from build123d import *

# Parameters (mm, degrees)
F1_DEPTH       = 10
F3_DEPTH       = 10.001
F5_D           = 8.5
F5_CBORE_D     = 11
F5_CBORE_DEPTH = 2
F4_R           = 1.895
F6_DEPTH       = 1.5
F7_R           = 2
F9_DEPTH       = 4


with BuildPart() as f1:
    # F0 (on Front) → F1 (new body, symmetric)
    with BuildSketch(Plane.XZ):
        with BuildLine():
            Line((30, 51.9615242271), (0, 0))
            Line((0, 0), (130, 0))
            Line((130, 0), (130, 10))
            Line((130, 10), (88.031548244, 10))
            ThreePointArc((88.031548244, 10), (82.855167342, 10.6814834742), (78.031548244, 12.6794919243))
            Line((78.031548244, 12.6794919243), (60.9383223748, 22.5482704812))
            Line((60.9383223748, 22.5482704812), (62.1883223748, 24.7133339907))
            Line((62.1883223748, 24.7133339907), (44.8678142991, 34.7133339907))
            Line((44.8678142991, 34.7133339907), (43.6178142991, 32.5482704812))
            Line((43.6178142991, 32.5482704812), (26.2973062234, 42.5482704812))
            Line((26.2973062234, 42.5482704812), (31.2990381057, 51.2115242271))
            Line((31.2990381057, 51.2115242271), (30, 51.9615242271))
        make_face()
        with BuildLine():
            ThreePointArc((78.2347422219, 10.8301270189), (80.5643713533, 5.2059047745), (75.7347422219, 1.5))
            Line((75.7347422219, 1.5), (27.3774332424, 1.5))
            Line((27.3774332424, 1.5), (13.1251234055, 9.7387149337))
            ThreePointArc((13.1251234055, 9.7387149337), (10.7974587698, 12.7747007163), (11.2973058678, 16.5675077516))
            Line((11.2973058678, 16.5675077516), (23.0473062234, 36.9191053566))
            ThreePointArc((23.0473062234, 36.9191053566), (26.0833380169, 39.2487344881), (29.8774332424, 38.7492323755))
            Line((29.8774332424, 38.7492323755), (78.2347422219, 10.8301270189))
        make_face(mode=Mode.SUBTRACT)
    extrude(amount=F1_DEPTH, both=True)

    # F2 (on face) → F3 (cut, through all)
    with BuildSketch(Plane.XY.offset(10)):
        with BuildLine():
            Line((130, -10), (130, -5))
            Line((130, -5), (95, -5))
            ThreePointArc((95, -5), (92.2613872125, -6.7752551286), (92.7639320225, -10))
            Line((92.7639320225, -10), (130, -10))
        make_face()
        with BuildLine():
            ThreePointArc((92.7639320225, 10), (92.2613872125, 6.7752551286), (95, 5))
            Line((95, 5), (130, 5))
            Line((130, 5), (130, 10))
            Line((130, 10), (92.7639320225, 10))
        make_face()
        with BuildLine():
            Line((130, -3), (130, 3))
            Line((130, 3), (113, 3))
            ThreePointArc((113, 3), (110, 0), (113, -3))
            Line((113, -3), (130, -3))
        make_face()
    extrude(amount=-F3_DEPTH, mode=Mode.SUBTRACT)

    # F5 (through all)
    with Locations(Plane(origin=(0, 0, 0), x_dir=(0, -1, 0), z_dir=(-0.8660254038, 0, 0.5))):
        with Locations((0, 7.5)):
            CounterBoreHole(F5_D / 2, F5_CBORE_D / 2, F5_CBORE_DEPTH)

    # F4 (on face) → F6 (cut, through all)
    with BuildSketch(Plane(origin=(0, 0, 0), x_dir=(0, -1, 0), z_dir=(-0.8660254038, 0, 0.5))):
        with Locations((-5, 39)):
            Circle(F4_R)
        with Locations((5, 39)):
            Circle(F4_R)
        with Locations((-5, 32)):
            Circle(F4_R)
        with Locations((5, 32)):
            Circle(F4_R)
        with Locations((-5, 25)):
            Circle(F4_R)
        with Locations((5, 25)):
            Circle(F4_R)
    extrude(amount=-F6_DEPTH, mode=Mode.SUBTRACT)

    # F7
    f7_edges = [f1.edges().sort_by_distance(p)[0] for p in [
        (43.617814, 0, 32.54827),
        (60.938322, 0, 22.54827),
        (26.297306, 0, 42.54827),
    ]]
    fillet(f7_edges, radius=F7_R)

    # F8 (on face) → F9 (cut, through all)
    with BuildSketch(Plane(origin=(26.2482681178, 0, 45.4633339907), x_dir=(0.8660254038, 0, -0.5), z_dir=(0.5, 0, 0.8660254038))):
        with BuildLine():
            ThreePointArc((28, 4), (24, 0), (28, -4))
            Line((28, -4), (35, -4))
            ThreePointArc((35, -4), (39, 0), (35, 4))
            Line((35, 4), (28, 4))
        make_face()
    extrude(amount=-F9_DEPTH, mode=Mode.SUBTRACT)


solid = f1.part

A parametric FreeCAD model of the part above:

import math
import FreeCAD as App
import Part
import Sketcher
from FreeCAD import Vector
Q = App.Units.Quantity


def edges_at(feature, points):
    """Names of the edges that pass closest to the given points."""
    edges = feature.Shape.Edges
    near = lambda p: min(range(len(edges)), key=lambda i: edges[i].distToShape(Part.Vertex(*p))[0])
    return sorted({f"Edge{near(p) + 1}" for p in points})

doc = App.newDocument("Part")
body = doc.addObject("PartDesign::Body", "Body")

sketch1 = body.newObject("Sketcher::SketchObject", "Sketch")
sketch1.AttachmentSupport = (doc.getObject("XZ_Plane"), [""])
sketch1.MapMode = "FlatFace"
sketch1.addGeometry(Part.LineSegment(Vector(30, 52, 0), Vector(0, 0, 0)), False)
sketch1.addGeometry(Part.LineSegment(Vector(0, 0, 0), Vector(130, 0, 0)), False)
sketch1.addGeometry(Part.LineSegment(Vector(130, 0, 0), Vector(130, 10, 0)), False)
sketch1.addGeometry(Part.LineSegment(Vector(130, 10, 0), Vector(88, 10, 0)), False)
sketch1.addGeometry(Part.ArcOfCircle(Part.Circle(Vector(88, 30, 0), Vector(0, 0, 1), 20), math.radians(-120), math.radians(-90)), False)
sketch1.addGeometry(Part.LineSegment(Vector(78, 12.7, 0), Vector(60.9, 22.5, 0)), False)
sketch1.addGeometry(Part.LineSegment(Vector(60.9, 22.5, 0), Vector(62.2, 24.7, 0)), False)
sketch1.addGeometry(Part.LineSegment(Vector(62.2, 24.7, 0), Vector(44.9, 34.7, 0)), False)
sketch1.addGeometry(Part.LineSegment(Vector(44.9, 34.7, 0), Vector(43.6, 32.5, 0)), False)
sketch1.addGeometry(Part.LineSegment(Vector(43.6, 32.5, 0), Vector(26.3, 42.5, 0)), False)
sketch1.addGeometry(Part.LineSegment(Vector(26.3, 42.5, 0), Vector(31.3, 51.2, 0)), False)
sketch1.addGeometry(Part.LineSegment(Vector(31.3, 51.2, 0), Vector(30, 52, 0)), False)
sketch1.addGeometry(Part.LineSegment(Vector(29.9, 38.7, 0), Vector(78.2, 10.8, 0)), False)
sketch1.addGeometry(Part.ArcOfCircle(Part.Circle(Vector(75.7, 6.5, 0), Vector(0, 0, 1), 5), math.radians(-90), math.radians(60)), False)
sketch1.addGeometry(Part.LineSegment(Vector(75.7, 1.5, 0), Vector(27.4, 1.5, 0)), False)
sketch1.addGeometry(Part.LineSegment(Vector(27.4, 1.5, 0), Vector(13.1, 9.7, 0)), False)
sketch1.addGeometry(Part.ArcOfCircle(Part.Circle(Vector(15.6, 14.1, 0), Vector(0, 0, 1), 5), math.radians(150), math.radians(240)), False)
sketch1.addGeometry(Part.LineSegment(Vector(11.3, 16.6, 0), Vector(23, 36.9, 0)), False)
sketch1.addGeometry(Part.ArcOfCircle(Part.Circle(Vector(27.4, 34.4, 0), Vector(0, 0, 1), 5), math.radians(60), math.radians(150)), False)
sketch1.addConstraint(Sketcher.Constraint("Coincident", 0, 2, 1, 1))
sketch1.addConstraint(Sketcher.Constraint("Coincident", 1, 2, 2, 1))
sketch1.addConstraint(Sketcher.Constraint("Coincident", 2, 2, 3, 1))
sketch1.addConstraint(Sketcher.Constraint("Tangent", 3, 2, 4, 2))
sketch1.addConstraint(Sketcher.Constraint("Tangent", 4, 1, 5, 1))
sketch1.addConstraint(Sketcher.Constraint("Coincident", 5, 2, 6, 1))
sketch1.addConstraint(Sketcher.Constraint("Coincident", 6, 2, 7, 1))
sketch1.addConstraint(Sketcher.Constraint("Coincident", 7, 2, 8, 1))
sketch1.addConstraint(Sketcher.Constraint("Coincident", 8, 2, 9, 1))
sketch1.addConstraint(Sketcher.Constraint("Coincident", 9, 2, 10, 1))
sketch1.addConstraint(Sketcher.Constraint("Coincident", 10, 2, 11, 1))
sketch1.addConstraint(Sketcher.Constraint("Coincident", 11, 2, 0, 1))
sketch1.addConstraint(Sketcher.Constraint("Tangent", 12, 2, 13, 2))
sketch1.addConstraint(Sketcher.Constraint("Tangent", 13, 1, 14, 1))
sketch1.addConstraint(Sketcher.Constraint("Coincident", 14, 2, 15, 1))
sketch1.addConstraint(Sketcher.Constraint("Tangent", 15, 2, 16, 2))
sketch1.addConstraint(Sketcher.Constraint("Tangent", 16, 1, 17, 1))
sketch1.addConstraint(Sketcher.Constraint("Tangent", 17, 2, 18, 2))
sketch1.addConstraint(Sketcher.Constraint("Tangent", 18, 1, 12, 1))
sketch1.addConstraint(Sketcher.Constraint("Horizontal", 1))
sketch1.addConstraint(Sketcher.Constraint("Vertical", 2))
sketch1.addConstraint(Sketcher.Constraint("Horizontal", 3))
sketch1.addConstraint(Sketcher.Constraint("Horizontal", 14))
sketch1.addConstraint(Sketcher.Constraint("Coincident", 0, 2, -1, 1))
sketch1.addConstraint(Sketcher.Constraint("Equal", 13, 16))
sketch1.addConstraint(Sketcher.Constraint("Equal", 16, 18))
sketch1.addConstraint(Sketcher.Constraint("Perpendicular", 0, 5))
sketch1.addConstraint(Sketcher.Constraint("Perpendicular", 5, 6))
sketch1.addConstraint(Sketcher.Constraint("Perpendicular", 6, 7))
sketch1.addConstraint(Sketcher.Constraint("Perpendicular", 7, 8))
sketch1.addConstraint(Sketcher.Constraint("Perpendicular", 8, 9))
sketch1.addConstraint(Sketcher.Constraint("Perpendicular", 9, 10))
sketch1.addConstraint(Sketcher.Constraint("Perpendicular", 10, 11))
sketch1.addConstraint(Sketcher.Constraint("Parallel", 11, 12))
sketch1.addConstraint(Sketcher.Constraint("Perpendicular", 12, 17))
sketch1.addConstraint(Sketcher.Constraint("Vertical", 18, 3, 14, 2))
sketch1.addConstraint(Sketcher.Constraint("Equal", 6, 8))
sketch1.addConstraint(Sketcher.Constraint("Equal", 7, 9))
sketch1.addConstraint(Sketcher.Constraint("Radius", 4, 20.0))
sketch1.addConstraint(Sketcher.Constraint("Radius", 13, 5.0))
sketch1.addConstraint(Sketcher.Constraint("DistanceX", 1, 1, 1, 2, 130.0))
sketch1.addConstraint(Sketcher.Constraint("DistanceY", 2, 1, 2, 2, 10.0))
sketch1.addConstraint(Sketcher.Constraint("Angle", 0, Q("-120 deg")))
sketch1.addConstraint(Sketcher.Constraint("Distance", 0, 60.0))
sketch1.addConstraint(Sketcher.Constraint("Distance", 7, 20.0))
sketch1.addConstraint(Sketcher.Constraint("Distance", 6, 2.5))
sketch1.addConstraint(Sketcher.Constraint("Distance", 11, 1.5))
sketch1.addConstraint(Sketcher.Constraint("Distance", 17, 23.500001))
sketch1.addConstraint(Sketcher.Constraint("DistanceY", -1, 1, 13, 3, 6.5))
sketch1.addConstraint(Sketcher.Constraint("DistanceX", 17, 2, 9, 2, 3.25))
sketch1.addConstraint(Sketcher.Constraint("DistanceX", 3, 2, 3, 1, 41.968452))
sketch1.addConstraint(Sketcher.Constraint("DistanceX", 14, 2, 14, 1, 48.357309))
pad1 = body.newObject("PartDesign::Pad", "Pad")
pad1.Profile = sketch1
pad1.Length = 20
pad1.Midplane = True

sketch2 = body.newObject("Sketcher::SketchObject", "Sketch001")
sketch2.AttachmentSupport = (doc.getObject("XY_Plane"), [""])
sketch2.MapMode = "FlatFace"
sketch2.AttachmentOffset = App.Placement(Vector(0, 0, 10), App.Rotation())
sketch2.addGeometry(Part.LineSegment(Vector(130, -10, 0), Vector(130, -5, 0)), False)
sketch2.addGeometry(Part.LineSegment(Vector(130, -5, 0), Vector(95, -5, 0)), False)
sketch2.addGeometry(Part.ArcOfCircle(Part.Circle(Vector(95, -8, 0), Vector(0, 0, 1), 3), math.radians(90), math.radians(222)), False)
sketch2.addGeometry(Part.LineSegment(Vector(92.8, -10, 0), Vector(130, -10, 0)), False)
sketch2.addGeometry(Part.ArcOfCircle(Part.Circle(Vector(95, 8, 0), Vector(0, 0, 1), 3), math.radians(138), math.radians(270)), False)
sketch2.addGeometry(Part.LineSegment(Vector(95, 5, 0), Vector(130, 5, 0)), False)
sketch2.addGeometry(Part.LineSegment(Vector(130, 5, 0), Vector(130, 10, 0)), False)
sketch2.addGeometry(Part.LineSegment(Vector(130, 10, 0), Vector(92.8, 10, 0)), False)
sketch2.addGeometry(Part.LineSegment(Vector(130, -3, 0), Vector(130, 3, 0)), False)
sketch2.addGeometry(Part.LineSegment(Vector(130, 3, 0), Vector(113, 3, 0)), False)
sketch2.addGeometry(Part.ArcOfCircle(Part.Circle(Vector(113, 0, 0), Vector(0, 0, 1), 3), math.radians(90), math.radians(270)), False)
sketch2.addGeometry(Part.LineSegment(Vector(113, -3, 0), Vector(130, -3, 0)), False)
sketch2.addConstraint(Sketcher.Constraint("Coincident", 0, 2, 1, 1))
sketch2.addConstraint(Sketcher.Constraint("Tangent", 1, 2, 2, 1))
sketch2.addConstraint(Sketcher.Constraint("Coincident", 2, 2, 3, 1))
sketch2.addConstraint(Sketcher.Constraint("Coincident", 3, 2, 0, 1))
sketch2.addConstraint(Sketcher.Constraint("Tangent", 4, 2, 5, 1))
sketch2.addConstraint(Sketcher.Constraint("Coincident", 5, 2, 6, 1))
sketch2.addConstraint(Sketcher.Constraint("Coincident", 6, 2, 7, 1))
sketch2.addConstraint(Sketcher.Constraint("Coincident", 7, 2, 4, 1))
sketch2.addConstraint(Sketcher.Constraint("Coincident", 8, 2, 9, 1))
sketch2.addConstraint(Sketcher.Constraint("Tangent", 9, 2, 10, 1))
sketch2.addConstraint(Sketcher.Constraint("Tangent", 10, 2, 11, 1))
sketch2.addConstraint(Sketcher.Constraint("Coincident", 11, 2, 8, 1))
sketch2.addConstraint(Sketcher.Constraint("Vertical", 0))
sketch2.addConstraint(Sketcher.Constraint("Horizontal", 1))
sketch2.addConstraint(Sketcher.Constraint("Horizontal", 3))
sketch2.addConstraint(Sketcher.Constraint("Horizontal", 5))
sketch2.addConstraint(Sketcher.Constraint("Vertical", 6))
sketch2.addConstraint(Sketcher.Constraint("Horizontal", 7))
sketch2.addConstraint(Sketcher.Constraint("Vertical", 8))
sketch2.addConstraint(Sketcher.Constraint("Horizontal", 9))
sketch2.addConstraint(Sketcher.Constraint("Horizontal", 11))
sketch2.addConstraint(Sketcher.Constraint("Equal", 2, 4))
sketch2.addConstraint(Sketcher.Constraint("Equal", 4, 10))
sketch2.addConstraint(Sketcher.Constraint("Symmetric", 2, 3, 4, 3, -1))
sketch2.addConstraint(Sketcher.Constraint("Symmetric", 3, 2, 6, 2, -1))
sketch2.addConstraint(Sketcher.Constraint("PointOnObject", 10, 3, -1))
sketch2.addConstraint(Sketcher.Constraint("Vertical", 6, 2, 8, 2))
sketch2.addConstraint(Sketcher.Constraint("Radius", 2, 3.0))
sketch2.addConstraint(Sketcher.Constraint("DistanceX", 1, 2, 1, 1, 35.0))
sketch2.addConstraint(Sketcher.Constraint("DistanceX", 9, 2, 9, 1, 17.0))
sketch2.addConstraint(Sketcher.Constraint("DistanceY", 0, 1, 0, 2, 5.0))
sketch2.addConstraint(Sketcher.Constraint("DistanceX", -1, 1, 2, 3, 95.0))
sketch2.addConstraint(Sketcher.Constraint("DistanceY", 2, 3, -1, 1, 8.0))
pocket1 = body.newObject("PartDesign::Pocket", "Pocket")
pocket1.Profile = sketch2
pocket1.Type = "ThroughAll"

sketch3 = body.newObject("Sketcher::SketchObject", "Sketch002")
sketch3.Placement = App.Placement(Vector(0, 0, 0), App.Rotation(Vector(0, -1, 0), Vector(0.5, 0, 0.866025404), Vector(-0.866025404, 0, 0.5), "ZXY"))
sketch3.addGeometry(Part.Circle(Vector(0, 7.5, 0), Vector(0, 0, 1), 4.2), False)
sketch3.addConstraint(Sketcher.Constraint("PointOnObject", 0, 3, -2))
sketch3.addConstraint(Sketcher.Constraint("Diameter", 0, 8.5))
sketch3.addConstraint(Sketcher.Constraint("DistanceY", -1, 1, 0, 3, 7.5))
doc.recompute()
hole = body.newObject("PartDesign::Hole", "Hole")
hole.Profile = sketch3
hole.ThreadType = "None"
hole.Diameter = 8.5
hole.DepthType = "ThroughAll"
hole.HoleCutType = "Counterbore"
hole.HoleCutDiameter = 11
hole.HoleCutDepth = 2

sketch4 = body.newObject("Sketcher::SketchObject", "Sketch003")
sketch4.Placement = App.Placement(Vector(0, 0, 0), App.Rotation(Vector(0, -1, 0), Vector(0.5, 0, 0.866025404), Vector(-0.866025404, 0, 0.5), "ZXY"))
sketch4.addGeometry(Part.Circle(Vector(-5, 39, 0), Vector(0, 0, 1), 1.9), False)
sketch4.addGeometry(Part.Circle(Vector(5, 39, 0), Vector(0, 0, 1), 1.9), False)
sketch4.addGeometry(Part.Circle(Vector(-5, 32, 0), Vector(0, 0, 1), 1.9), False)
sketch4.addGeometry(Part.Circle(Vector(5, 32, 0), Vector(0, 0, 1), 1.9), False)
sketch4.addGeometry(Part.Circle(Vector(-5, 25, 0), Vector(0, 0, 1), 1.9), False)
sketch4.addGeometry(Part.Circle(Vector(5, 25, 0), Vector(0, 0, 1), 1.9), False)
sketch4.addConstraint(Sketcher.Constraint("Equal", 0, 1))
sketch4.addConstraint(Sketcher.Constraint("Equal", 1, 2))
sketch4.addConstraint(Sketcher.Constraint("Equal", 2, 3))
sketch4.addConstraint(Sketcher.Constraint("Equal", 3, 4))
sketch4.addConstraint(Sketcher.Constraint("Equal", 4, 5))
sketch4.addConstraint(Sketcher.Constraint("Symmetric", 0, 3, 1, 3, -2))
sketch4.addConstraint(Sketcher.Constraint("Symmetric", 2, 3, 3, 3, -2))
sketch4.addConstraint(Sketcher.Constraint("Symmetric", 4, 3, 5, 3, -2))
sketch4.addConstraint(Sketcher.Constraint("Vertical", 0, 3, 2, 3))
sketch4.addConstraint(Sketcher.Constraint("Vertical", 2, 3, 4, 3))
sketch4.addConstraint(Sketcher.Constraint("Diameter", 0, 3.79))
sketch4.addConstraint(Sketcher.Constraint("DistanceX", 0, 3, -1, 1, 5.0))
sketch4.addConstraint(Sketcher.Constraint("DistanceY", -1, 1, 0, 3, 39.0))
sketch4.addConstraint(Sketcher.Constraint("DistanceY", -1, 1, 2, 3, 32.0))
sketch4.addConstraint(Sketcher.Constraint("DistanceY", -1, 1, 4, 3, 25.0))
pocket2 = body.newObject("PartDesign::Pocket", "Pocket001")
pocket2.Profile = sketch4
pocket2.Length = 1.5
doc.recompute()

fillet = body.newObject("PartDesign::Fillet", "Fillet")
fillet.Base = (pocket2, edges_at(pocket2, [(43.618, 0, 32.548), (60.938, 0, 22.548), (26.297, 0, 42.548)]))
fillet.Radius = 2

sketch5 = body.newObject("Sketcher::SketchObject", "Sketch004")
sketch5.Placement = App.Placement(Vector(26.248268, 0, 45.463334), App.Rotation(Vector(0.866025404, 0, -0.5), Vector(0, 1, 0), Vector(0.5, 0, 0.866025404), "ZXY"))
sketch5.addGeometry(Part.ArcOfCircle(Part.Circle(Vector(28, 0, 0), Vector(0, 0, 1), 4), math.radians(90), math.radians(270)), False)
sketch5.addGeometry(Part.LineSegment(Vector(28, -4, 0), Vector(35, -4, 0)), False)
sketch5.addGeometry(Part.ArcOfCircle(Part.Circle(Vector(35, 0, 0), Vector(0, 0, 1), 4), math.radians(-90), math.radians(90)), False)
sketch5.addGeometry(Part.LineSegment(Vector(35, 4, 0), Vector(28, 4, 0)), False)
sketch5.addConstraint(Sketcher.Constraint("Tangent", 0, 2, 1, 1))
sketch5.addConstraint(Sketcher.Constraint("Tangent", 1, 2, 2, 1))
sketch5.addConstraint(Sketcher.Constraint("Tangent", 2, 2, 3, 1))
sketch5.addConstraint(Sketcher.Constraint("Tangent", 3, 2, 0, 1))
sketch5.addConstraint(Sketcher.Constraint("Horizontal", 1))
sketch5.addConstraint(Sketcher.Constraint("Horizontal", 3))
sketch5.addConstraint(Sketcher.Constraint("PointOnObject", 0, 3, -1))
sketch5.addConstraint(Sketcher.Constraint("Radius", 0, 4.0))
sketch5.addConstraint(Sketcher.Constraint("DistanceX", 1, 1, 1, 2, 7.0))
sketch5.addConstraint(Sketcher.Constraint("DistanceX", -1, 1, 0, 3, 28.0))
pocket3 = body.newObject("PartDesign::Pocket", "Pocket002")
pocket3.Profile = sketch5
pocket3.Length = 4

doc.recompute()
